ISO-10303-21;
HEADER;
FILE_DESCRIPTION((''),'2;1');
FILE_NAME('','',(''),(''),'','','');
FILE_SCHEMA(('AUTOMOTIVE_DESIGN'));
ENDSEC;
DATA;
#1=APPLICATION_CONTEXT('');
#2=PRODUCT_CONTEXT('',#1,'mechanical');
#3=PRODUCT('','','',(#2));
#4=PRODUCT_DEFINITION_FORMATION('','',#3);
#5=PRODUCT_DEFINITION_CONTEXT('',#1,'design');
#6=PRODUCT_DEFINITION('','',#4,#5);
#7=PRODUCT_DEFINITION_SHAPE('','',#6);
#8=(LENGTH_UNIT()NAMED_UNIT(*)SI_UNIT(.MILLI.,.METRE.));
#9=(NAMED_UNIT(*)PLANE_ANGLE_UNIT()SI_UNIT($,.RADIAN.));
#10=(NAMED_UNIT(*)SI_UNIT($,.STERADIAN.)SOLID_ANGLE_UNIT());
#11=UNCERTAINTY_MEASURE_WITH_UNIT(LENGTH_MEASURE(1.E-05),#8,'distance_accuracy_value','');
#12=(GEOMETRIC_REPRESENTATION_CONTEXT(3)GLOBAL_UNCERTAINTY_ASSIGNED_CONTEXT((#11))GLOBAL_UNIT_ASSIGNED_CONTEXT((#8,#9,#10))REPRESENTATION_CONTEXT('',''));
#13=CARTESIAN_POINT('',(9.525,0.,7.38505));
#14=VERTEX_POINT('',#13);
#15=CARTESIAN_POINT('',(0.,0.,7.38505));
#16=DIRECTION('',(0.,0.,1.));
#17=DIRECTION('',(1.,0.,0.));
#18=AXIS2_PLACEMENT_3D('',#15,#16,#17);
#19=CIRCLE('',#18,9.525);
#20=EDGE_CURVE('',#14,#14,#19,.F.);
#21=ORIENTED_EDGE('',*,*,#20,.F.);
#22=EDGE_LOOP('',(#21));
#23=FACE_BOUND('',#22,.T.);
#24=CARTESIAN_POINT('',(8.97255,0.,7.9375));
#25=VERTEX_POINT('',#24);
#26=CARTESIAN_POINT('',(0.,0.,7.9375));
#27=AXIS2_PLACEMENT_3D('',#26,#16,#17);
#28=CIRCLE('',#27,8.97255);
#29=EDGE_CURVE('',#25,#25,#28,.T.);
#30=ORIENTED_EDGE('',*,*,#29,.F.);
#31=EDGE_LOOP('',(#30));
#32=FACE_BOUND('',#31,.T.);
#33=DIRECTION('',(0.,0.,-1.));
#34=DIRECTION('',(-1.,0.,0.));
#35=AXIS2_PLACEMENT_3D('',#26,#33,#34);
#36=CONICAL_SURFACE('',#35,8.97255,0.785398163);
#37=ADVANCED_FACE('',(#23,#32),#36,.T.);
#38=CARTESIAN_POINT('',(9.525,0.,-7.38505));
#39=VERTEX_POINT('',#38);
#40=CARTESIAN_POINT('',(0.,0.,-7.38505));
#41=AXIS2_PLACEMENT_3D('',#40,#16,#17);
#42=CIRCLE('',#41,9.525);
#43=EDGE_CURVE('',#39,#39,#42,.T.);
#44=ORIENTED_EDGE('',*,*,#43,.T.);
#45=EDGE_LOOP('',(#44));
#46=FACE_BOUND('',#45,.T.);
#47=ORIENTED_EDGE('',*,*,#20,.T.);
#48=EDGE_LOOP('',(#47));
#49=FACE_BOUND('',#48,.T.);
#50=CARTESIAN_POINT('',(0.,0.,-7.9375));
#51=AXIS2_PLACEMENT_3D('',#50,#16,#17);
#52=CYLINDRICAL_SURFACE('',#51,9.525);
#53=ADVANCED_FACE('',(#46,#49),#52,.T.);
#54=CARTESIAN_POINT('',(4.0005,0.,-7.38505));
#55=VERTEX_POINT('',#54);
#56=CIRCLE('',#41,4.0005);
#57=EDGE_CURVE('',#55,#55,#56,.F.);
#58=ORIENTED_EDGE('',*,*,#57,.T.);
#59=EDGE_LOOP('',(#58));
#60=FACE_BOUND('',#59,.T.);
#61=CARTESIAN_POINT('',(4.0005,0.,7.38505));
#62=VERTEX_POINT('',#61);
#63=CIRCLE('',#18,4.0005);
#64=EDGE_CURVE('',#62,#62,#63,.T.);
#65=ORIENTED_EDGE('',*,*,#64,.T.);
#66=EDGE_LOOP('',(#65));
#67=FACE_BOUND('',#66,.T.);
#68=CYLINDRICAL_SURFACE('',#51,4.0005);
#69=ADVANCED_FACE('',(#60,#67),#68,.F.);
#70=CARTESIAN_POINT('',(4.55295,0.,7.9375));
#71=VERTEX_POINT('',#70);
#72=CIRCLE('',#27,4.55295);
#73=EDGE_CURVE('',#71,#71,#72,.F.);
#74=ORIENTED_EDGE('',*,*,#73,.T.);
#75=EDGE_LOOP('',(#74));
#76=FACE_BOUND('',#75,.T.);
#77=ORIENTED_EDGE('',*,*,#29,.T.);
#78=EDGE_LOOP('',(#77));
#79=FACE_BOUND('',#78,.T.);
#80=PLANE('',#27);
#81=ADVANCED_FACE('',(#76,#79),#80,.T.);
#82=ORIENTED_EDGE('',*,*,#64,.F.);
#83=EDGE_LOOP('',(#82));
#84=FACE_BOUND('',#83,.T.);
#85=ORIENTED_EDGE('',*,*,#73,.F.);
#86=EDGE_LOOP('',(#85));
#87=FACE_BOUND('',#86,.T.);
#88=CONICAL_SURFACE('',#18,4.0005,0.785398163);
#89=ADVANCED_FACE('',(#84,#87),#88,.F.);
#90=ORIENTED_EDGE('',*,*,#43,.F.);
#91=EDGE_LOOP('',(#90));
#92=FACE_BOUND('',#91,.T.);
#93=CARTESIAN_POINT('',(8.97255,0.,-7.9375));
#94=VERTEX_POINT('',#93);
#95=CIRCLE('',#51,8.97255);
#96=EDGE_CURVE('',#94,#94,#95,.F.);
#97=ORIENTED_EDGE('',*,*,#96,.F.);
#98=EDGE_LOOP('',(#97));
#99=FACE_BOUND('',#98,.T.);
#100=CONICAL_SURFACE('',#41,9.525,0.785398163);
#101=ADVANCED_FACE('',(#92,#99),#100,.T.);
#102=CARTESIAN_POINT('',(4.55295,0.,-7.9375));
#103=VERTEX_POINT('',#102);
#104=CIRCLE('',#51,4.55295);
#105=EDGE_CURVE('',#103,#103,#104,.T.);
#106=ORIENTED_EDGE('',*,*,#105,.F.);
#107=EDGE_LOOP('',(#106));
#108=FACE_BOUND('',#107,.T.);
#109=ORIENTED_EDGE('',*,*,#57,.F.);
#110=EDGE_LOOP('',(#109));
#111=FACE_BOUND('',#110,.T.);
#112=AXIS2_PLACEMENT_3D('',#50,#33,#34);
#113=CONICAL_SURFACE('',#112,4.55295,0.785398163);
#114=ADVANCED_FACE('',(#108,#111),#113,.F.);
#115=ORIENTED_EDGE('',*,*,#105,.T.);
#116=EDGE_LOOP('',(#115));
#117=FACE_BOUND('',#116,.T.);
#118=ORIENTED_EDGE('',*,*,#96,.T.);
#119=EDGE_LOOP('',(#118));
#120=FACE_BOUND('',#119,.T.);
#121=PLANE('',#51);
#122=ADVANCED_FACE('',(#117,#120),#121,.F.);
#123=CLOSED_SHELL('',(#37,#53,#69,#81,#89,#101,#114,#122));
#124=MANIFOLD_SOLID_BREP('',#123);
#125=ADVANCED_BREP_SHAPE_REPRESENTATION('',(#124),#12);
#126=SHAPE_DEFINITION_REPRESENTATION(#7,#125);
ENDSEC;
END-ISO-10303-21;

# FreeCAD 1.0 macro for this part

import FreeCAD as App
import Part
import Sketcher

V = App.Vector
Q = App.Units.Quantity


def edges_at(feature, points):
    """Names of the edges that pass closest to the given points."""
    edges = feature.Shape.Edges
    near = lambda p: min(range(len(edges)), key=lambda i: edges[i].distToShape(Part.Vertex(*p))[0])
    return sorted({f"Edge{near(p) + 1}" for p in points})

doc = App.newDocument("Part")
body = doc.addObject("PartDesign::Body", "Body")

sketch1 = doc.addObject("Sketcher::SketchObject", "Sketch")
body.addObject(sketch1)
sketch1.AttachmentSupport = (doc.XY_Plane, [""])
sketch1.MapMode = "FlatFace"
sketch1.addGeometry([
    Part.Circle(V(0, 0, 0), V(0, 0, 1), 9.5),
    Part.Circle(V(0, 0, 0), V(0, 0, 1), 4),
], False)
sketch1.addConstraint([
    Sketcher.Constraint("Coincident", 0, 3, -1, 1),
    Sketcher.Constraint("Coincident", 1, 3, -1, 1),
    Sketcher.Constraint("Diameter", 0, Q("0.75 in")),
    Sketcher.Constraint("Diameter", 1, Q("0.315 in")),
])
pad1 = doc.addObject("PartDesign::Pad", "Pad")
body.addObject(pad1)
pad1.Profile = sketch1
pad1.Type = "TwoLengths"
pad1.Length = Q("0.3125 in")
pad1.Length2 = Q("0.3125 in")
doc.recompute()

chamfer = doc.addObject("PartDesign::Chamfer", "Chamfer")
body.addObject(chamfer)
chamfer.Base = (pad1, edges_at(pad1, [
    (-9.525, 0, -7.938),
    (-4, 0, -7.938),
    (-9.525, 0, 7.938),
    (-4, 0, 7.938),
]))
chamfer.Size = 0.55245

doc.recompute()
